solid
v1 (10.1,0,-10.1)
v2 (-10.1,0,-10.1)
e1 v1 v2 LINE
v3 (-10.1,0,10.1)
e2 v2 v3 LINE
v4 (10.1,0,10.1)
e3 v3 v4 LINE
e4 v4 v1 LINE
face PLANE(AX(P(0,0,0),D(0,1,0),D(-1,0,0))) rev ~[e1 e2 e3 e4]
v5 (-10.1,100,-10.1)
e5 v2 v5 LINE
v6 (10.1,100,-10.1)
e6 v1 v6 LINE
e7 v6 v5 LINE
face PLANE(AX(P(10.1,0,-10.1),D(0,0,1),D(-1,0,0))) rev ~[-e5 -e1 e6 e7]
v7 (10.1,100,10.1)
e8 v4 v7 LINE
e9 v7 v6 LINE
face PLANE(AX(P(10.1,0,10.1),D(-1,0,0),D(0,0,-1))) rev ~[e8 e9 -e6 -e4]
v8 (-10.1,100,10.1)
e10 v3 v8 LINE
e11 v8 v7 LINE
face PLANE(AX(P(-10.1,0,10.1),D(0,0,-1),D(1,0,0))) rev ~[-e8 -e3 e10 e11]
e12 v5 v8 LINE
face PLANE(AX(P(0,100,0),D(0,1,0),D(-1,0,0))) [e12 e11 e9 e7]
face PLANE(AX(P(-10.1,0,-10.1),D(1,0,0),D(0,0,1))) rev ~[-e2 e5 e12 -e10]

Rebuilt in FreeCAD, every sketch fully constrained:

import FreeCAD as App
import Part
import Sketcher
Q = App.Units.Quantity

doc = App.newDocument("Part")
params = doc.addObject("Spreadsheet::Sheet", "Params")
for row, (alias, value) in enumerate([
    ("sketch1_width", "20.2 mm"),
    ("pad1_length", "100 mm"),
], start=1):
    params.set(f"A{row}", alias)
    params.set(f"B{row}", "=" + value)
    params.setAlias(f"B{row}", alias)

body = doc.addObject("PartDesign::Body", "Body")

# Sketch on XZ plane
sketch1 = body.newObject("Sketcher::SketchObject", "Sketch")
sketch1.AttachmentSupport = (doc.getObject("XZ_Plane"), [""])
sketch1.MapMode = "FlatFace"
sketch1.addGeometry([
    Part.LineSegment(App.Vector(-10, -10, 0), App.Vector(-10, 10, 0)),
    Part.LineSegment(App.Vector(-10, 10, 0), App.Vector(10, 10, 0)),
    Part.LineSegment(App.Vector(10, 10, 0), App.Vector(10, -10, 0)),
    Part.LineSegment(App.Vector(10, -10, 0), App.Vector(-10, -10, 0)),
], False)
sketch1.addConstraint([
    Sketcher.Constraint("Coincident", 0, 2, 1, 1),
    Sketcher.Constraint("Coincident", 1, 2, 2, 1),
    Sketcher.Constraint("Coincident", 2, 2, 3, 1),
    Sketcher.Constraint("Coincident", 3, 2, 0, 1),
    Sketcher.Constraint("Vertical", 0),
    Sketcher.Constraint("Horizontal", 1),
    Sketcher.Constraint("Vertical", 2),
    Sketcher.Constraint("Horizontal", 3),
    Sketcher.Constraint("Symmetric", 0, 2, 2, 2, -1, 1),
    Sketcher.Constraint("Equal", 3, 0),
    Sketcher.Constraint("DistanceX", 1, 1, 1, 2, Q("20.2 mm")),
])
sketch1.setExpression("Constraints[10]", "Params.sketch1_width")
pad1 = body.newObject("PartDesign::Pad", "Pad")
pad1.Profile = sketch1
pad1.setExpression("Length", "Params.pad1_length")
pad1.Reversed = True

doc.recompute()
